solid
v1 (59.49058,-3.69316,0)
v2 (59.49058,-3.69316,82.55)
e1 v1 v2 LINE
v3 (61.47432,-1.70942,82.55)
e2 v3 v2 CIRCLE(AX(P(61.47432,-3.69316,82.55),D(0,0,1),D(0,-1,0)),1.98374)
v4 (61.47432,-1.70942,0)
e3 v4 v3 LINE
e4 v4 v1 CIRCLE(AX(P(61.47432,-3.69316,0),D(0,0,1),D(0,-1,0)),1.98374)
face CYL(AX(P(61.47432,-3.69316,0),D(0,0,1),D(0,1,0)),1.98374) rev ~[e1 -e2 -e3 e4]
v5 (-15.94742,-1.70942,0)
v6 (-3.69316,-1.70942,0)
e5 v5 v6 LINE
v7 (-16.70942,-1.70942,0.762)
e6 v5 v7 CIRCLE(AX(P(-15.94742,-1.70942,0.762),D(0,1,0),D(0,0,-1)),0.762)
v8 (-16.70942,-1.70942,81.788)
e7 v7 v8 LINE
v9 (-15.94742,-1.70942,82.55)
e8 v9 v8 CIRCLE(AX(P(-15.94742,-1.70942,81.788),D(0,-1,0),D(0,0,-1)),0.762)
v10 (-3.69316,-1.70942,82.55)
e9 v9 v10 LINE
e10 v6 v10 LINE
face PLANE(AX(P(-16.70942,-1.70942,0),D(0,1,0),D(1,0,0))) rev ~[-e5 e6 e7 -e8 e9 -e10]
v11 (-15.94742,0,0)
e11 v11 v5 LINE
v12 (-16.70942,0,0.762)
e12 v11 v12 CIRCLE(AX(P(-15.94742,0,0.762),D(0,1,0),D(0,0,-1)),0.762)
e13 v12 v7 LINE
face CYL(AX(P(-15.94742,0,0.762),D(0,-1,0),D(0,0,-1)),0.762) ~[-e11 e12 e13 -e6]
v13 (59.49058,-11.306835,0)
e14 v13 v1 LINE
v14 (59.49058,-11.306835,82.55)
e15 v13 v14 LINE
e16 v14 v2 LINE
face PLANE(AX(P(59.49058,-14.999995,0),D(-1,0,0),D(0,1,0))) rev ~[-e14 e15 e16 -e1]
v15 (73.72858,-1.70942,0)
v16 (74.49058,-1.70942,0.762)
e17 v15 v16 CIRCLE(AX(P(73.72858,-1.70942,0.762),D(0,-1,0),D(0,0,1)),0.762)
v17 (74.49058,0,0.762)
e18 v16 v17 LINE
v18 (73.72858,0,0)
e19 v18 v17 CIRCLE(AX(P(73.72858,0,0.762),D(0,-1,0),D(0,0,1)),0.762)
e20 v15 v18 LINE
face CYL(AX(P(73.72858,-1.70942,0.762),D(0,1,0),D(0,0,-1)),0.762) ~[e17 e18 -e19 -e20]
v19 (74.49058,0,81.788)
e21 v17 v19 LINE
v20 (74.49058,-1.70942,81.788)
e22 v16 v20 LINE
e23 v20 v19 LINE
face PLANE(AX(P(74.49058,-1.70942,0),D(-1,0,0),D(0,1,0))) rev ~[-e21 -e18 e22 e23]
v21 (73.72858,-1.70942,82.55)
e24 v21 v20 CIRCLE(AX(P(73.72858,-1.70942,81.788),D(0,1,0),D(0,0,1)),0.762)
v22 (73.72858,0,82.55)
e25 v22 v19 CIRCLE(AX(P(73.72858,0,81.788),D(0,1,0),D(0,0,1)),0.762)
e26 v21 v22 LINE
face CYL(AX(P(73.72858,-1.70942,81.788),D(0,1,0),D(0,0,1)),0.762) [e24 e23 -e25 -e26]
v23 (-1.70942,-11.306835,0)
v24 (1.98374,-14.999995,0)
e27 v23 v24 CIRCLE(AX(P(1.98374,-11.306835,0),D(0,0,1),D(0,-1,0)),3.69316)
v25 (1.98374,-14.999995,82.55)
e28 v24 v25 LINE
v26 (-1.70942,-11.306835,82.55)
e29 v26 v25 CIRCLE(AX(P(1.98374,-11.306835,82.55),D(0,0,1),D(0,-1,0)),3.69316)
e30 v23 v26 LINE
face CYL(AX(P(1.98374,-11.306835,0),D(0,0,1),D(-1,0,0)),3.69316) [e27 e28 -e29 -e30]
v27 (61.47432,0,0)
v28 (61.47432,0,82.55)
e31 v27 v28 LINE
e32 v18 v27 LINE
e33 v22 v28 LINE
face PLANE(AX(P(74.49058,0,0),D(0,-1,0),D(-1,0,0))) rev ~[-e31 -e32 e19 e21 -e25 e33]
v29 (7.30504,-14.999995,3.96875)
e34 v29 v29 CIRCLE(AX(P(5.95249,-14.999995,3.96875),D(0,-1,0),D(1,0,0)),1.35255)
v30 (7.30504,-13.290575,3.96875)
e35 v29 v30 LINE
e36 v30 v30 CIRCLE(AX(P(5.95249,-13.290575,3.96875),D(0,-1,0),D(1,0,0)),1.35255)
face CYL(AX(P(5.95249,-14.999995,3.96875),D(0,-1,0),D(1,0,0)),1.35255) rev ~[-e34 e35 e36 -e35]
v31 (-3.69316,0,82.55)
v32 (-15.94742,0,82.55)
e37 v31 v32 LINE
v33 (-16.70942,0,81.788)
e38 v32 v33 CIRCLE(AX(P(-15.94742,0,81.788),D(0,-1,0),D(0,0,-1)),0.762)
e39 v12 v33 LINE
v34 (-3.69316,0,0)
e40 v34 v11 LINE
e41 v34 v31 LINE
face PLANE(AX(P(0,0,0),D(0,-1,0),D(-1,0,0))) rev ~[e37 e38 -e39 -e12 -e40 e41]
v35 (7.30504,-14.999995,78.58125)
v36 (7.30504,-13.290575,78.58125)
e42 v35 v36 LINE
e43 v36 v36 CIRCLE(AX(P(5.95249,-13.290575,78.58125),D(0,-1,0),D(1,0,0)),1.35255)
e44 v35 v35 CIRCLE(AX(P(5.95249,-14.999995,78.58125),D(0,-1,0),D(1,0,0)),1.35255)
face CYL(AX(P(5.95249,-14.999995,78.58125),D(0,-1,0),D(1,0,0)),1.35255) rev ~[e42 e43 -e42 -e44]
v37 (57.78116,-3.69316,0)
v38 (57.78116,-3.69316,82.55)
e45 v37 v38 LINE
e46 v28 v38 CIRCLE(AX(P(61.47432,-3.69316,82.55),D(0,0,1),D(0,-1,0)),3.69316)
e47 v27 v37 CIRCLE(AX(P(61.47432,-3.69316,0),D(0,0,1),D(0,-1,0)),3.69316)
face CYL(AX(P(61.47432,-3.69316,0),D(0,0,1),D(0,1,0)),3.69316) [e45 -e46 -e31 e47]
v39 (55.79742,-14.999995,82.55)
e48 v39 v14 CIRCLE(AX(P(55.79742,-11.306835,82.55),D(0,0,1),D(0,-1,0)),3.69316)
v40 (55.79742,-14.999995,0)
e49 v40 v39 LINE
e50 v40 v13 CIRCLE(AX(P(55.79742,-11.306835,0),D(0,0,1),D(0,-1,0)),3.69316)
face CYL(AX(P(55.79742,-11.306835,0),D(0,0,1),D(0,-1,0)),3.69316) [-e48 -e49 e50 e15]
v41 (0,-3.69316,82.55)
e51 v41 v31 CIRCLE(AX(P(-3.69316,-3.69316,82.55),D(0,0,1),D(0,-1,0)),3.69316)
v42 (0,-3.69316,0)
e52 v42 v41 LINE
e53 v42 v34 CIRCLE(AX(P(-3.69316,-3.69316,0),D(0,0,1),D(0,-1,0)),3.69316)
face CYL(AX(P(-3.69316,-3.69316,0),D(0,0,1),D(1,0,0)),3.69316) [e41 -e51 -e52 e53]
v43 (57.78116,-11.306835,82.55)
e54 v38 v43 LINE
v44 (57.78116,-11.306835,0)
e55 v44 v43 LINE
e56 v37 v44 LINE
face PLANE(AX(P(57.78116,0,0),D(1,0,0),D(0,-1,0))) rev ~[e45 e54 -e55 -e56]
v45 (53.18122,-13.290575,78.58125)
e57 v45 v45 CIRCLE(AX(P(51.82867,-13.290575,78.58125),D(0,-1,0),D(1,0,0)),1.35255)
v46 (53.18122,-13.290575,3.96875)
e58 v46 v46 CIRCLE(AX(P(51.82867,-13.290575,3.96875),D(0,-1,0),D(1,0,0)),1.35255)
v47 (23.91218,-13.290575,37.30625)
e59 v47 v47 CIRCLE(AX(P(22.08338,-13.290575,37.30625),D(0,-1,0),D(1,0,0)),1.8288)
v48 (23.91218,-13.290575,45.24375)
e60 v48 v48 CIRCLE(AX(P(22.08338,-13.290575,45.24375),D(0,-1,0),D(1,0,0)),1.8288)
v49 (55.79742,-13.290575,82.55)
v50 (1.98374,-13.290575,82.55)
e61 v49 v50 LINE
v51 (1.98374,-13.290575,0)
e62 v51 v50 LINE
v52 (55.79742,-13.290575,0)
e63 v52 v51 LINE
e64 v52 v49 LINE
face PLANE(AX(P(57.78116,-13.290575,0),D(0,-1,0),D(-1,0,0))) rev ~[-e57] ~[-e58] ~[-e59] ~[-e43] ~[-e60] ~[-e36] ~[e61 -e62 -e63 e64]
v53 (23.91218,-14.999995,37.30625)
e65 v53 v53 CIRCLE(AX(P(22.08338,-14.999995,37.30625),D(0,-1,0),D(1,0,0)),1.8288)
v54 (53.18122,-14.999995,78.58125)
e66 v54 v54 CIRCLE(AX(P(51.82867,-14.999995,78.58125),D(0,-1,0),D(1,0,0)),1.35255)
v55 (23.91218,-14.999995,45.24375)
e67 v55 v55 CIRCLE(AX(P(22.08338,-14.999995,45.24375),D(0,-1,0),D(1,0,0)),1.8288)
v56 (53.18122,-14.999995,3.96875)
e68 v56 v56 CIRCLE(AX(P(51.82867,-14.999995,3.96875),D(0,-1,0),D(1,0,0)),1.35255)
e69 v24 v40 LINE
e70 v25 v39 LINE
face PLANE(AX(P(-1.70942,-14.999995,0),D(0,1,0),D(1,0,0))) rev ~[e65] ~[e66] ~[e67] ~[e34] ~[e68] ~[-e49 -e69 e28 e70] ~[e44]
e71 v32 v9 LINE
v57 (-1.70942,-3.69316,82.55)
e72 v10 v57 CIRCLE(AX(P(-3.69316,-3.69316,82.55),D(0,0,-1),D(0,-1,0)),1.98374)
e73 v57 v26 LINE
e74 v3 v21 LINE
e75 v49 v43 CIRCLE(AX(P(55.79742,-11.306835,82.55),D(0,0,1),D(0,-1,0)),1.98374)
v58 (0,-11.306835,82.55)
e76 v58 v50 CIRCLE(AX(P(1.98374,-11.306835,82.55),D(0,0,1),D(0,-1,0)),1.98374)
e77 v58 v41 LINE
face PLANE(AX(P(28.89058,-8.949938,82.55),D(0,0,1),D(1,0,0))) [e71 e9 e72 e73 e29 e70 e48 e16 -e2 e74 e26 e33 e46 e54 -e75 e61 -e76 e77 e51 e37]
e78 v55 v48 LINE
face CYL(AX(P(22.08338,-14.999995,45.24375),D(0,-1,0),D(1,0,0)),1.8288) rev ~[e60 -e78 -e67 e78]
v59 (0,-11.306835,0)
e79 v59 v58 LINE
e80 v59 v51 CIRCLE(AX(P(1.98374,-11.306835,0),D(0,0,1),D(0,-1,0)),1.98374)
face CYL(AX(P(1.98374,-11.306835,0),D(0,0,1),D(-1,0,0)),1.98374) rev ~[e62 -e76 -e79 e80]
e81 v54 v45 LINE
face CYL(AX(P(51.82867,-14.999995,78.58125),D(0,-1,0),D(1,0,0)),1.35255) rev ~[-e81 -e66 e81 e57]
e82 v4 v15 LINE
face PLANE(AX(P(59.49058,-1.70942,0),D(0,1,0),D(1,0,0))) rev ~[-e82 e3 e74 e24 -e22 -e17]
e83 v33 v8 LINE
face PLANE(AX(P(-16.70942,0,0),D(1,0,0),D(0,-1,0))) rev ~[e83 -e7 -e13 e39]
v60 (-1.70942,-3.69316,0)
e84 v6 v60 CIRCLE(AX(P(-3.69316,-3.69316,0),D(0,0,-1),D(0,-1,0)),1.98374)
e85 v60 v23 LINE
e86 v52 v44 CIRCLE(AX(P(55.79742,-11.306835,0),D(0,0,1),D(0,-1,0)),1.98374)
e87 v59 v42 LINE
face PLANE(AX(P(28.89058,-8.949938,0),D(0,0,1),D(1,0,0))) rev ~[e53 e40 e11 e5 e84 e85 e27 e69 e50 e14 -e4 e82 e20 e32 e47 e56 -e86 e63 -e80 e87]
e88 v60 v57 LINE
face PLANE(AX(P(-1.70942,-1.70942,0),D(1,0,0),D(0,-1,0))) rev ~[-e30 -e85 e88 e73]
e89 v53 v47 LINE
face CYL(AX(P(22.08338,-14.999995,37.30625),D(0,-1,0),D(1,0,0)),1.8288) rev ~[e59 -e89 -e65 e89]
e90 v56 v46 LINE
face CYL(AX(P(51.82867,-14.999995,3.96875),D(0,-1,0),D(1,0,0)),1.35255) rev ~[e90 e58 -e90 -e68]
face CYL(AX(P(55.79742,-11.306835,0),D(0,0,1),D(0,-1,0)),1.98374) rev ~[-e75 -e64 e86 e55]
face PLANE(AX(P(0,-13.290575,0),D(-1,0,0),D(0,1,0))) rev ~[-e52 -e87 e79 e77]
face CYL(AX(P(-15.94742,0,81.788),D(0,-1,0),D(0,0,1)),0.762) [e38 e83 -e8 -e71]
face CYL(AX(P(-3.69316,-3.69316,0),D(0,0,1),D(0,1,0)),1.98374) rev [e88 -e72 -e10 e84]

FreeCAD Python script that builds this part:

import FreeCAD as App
import Part
import Sketcher

V = App.Vector
Q = App.Units.Quantity


def edges_at(feature, points):
    """Names of the edges that pass closest to the given points."""
    edges = feature.Shape.Edges
    near = lambda p: min(range(len(edges)), key=lambda i: edges[i].distToShape(Part.Vertex(*p))[0])
    return sorted({f"Edge{near(p) + 1}" for p in points})


def add_polygon(sketch, points):
    """Adds a closed chain of lines whose ends are joined by coincident constraints."""
    first, n = sketch.GeometryCount, len(points)
    for a, b in zip(points, points[1:] + points[:1]):
        sketch.addGeometry(Part.LineSegment(App.Vector(*a, 0), App.Vector(*b, 0)), False)
    for i in range(n):
        sketch.addConstraint(Sketcher.Constraint("Coincident", first + i, 2, first + (i + 1) % n, 1))

doc = App.newDocument("Part")
body = doc.addObject("PartDesign::Body", "Body")

sketch1 = body.newObject("Sketcher::SketchObject", "Sketch")
sketch1.AttachmentSupport = (doc.getObject("XY_Plane"), [""])
sketch1.MapMode = "FlatFace"
add_polygon(sketch1, [(0, -13.3), (0, 0), (-16.7, 0), (-16.7, -1.7), (-1.7, -1.7), (-1.7, -15), (59.5, -15), (59.5, -1.7), (74.5, -1.7), (74.5, 0), (57.8, 0), (57.8, -13.3)])
sketch1.addConstraint(Sketcher.Constraint("Vertical", 0))
sketch1.addConstraint(Sketcher.Constraint("Horizontal", 1))
sketch1.addConstraint(Sketcher.Constraint("Vertical", 2))
sketch1.addConstraint(Sketcher.Constraint("Horizontal", 3))
sketch1.addConstraint(Sketcher.Constraint("Vertical", 4))
sketch1.addConstraint(Sketcher.Constraint("Horizontal", 5))
sketch1.addConstraint(Sketcher.Constraint("Vertical", 6))
sketch1.addConstraint(Sketcher.Constraint("Horizontal", 7))
sketch1.addConstraint(Sketcher.Constraint("Vertical", 8))
sketch1.addConstraint(Sketcher.Constraint("Horizontal", 9))
sketch1.addConstraint(Sketcher.Constraint("Vertical", 10))
sketch1.addConstraint(Sketcher.Constraint("Horizontal", 11))
sketch1.addConstraint(Sketcher.Constraint("Coincident", 0, 2, -1, 1))
sketch1.addConstraint(Sketcher.Constraint("PointOnObject", 8, 2, -1))
sketch1.addConstraint(Sketcher.Constraint("Horizontal", 3, 2, 6, 2))
sketch1.addConstraint(Sketcher.Constraint("Equal", 3, 7))
sketch1.addConstraint(Sketcher.Constraint("Equal", 1, 9))
sketch1.addConstraint(Sketcher.Constraint("Equal", 0, 4))
sketch1.addConstraint(Sketcher.Constraint("DistanceX", 2, 2, 5, 2, Q("3 in")))
sketch1.addConstraint(Sketcher.Constraint("DistanceY", 2, 2, 2, 1, Q("0.0673 in")))
sketch1.addConstraint(Sketcher.Constraint("DistanceX", 3, 1, 3, 2, Q("15 mm")))
sketch1.addConstraint(Sketcher.Constraint("DistanceX", 3, 2, -1, 1, Q("0.0673 in")))
sketch1.addConstraint(Sketcher.Constraint("DistanceY", 0, 1, 0, 2, Q("13.290575 mm")))
pad1 = body.newObject("PartDesign::Pad", "Pad")
pad1.Profile = sketch1
pad1.Length = Q("3.25 in")
doc.recompute()

fillet = body.newObject("PartDesign::Fillet", "Fillet")
fillet.Base = (pad1, edges_at(pad1, [
    (59.491, -15, 41.275),
    (-1.709, -15, 41.275),
    (0, 0, 41.275),
    (57.781, 0, 41.275),
]))
fillet.Radius = Q("0.1454 in")
doc.recompute()

fillet2 = body.newObject("PartDesign::Fillet", "Fillet001")
fillet2.Base = (fillet, edges_at(fillet, [
    (0, -13.291, 41.275),
    (57.781, -13.291, 41.275),
    (59.491, -1.709, 41.275),
    (-1.709, -1.709, 41.275),
]))
fillet2.Radius = Q("0.0781 in")

sketch2 = body.newObject("Sketcher::SketchObject", "Sketch001")
sketch2.AttachmentSupport = (doc.getObject("XZ_Plane"), [""])
sketch2.MapMode = "FlatFace"
sketch2.AttachmentOffset = App.Placement(V(0, 0, 14.999995), App.Rotation())
sketch2.addGeometry(Part.Circle(V(51.8, 78.6, 0), V(0, 0, 1), 1.4), False)
sketch2.addGeometry(Part.Circle(V(6, 78.6, 0), V(0, 0, 1), 1.4), False)
sketch2.addGeometry(Part.Circle(V(6, 4, 0), V(0, 0, 1), 1.4), False)
sketch2.addGeometry(Part.Circle(V(51.8, 4, 0), V(0, 0, 1), 1.4), False)
sketch2.addGeometry(Part.Circle(V(22.1, 37.3, 0), V(0, 0, 1), 1.8), False)
sketch2.addGeometry(Part.Circle(V(22.1, 45.2, 0), V(0, 0, 1), 1.8), False)
sketch2.addConstraint(Sketcher.Constraint("Equal", 0, 1))
sketch2.addConstraint(Sketcher.Constraint("Equal", 1, 2))
sketch2.addConstraint(Sketcher.Constraint("Equal", 2, 3))
sketch2.addConstraint(Sketcher.Constraint("Equal", 4, 5))
sketch2.addConstraint(Sketcher.Constraint("Horizontal", 0, 3, 1, 3))
sketch2.addConstraint(Sketcher.Constraint("Horizontal", 2, 3, 3, 3))
sketch2.addConstraint(Sketcher.Constraint("Vertical", 1, 3, 2, 3))
sketch2.addConstraint(Sketcher.Constraint("Vertical", 0, 3, 3, 3))
sketch2.addConstraint(Sketcher.Constraint("Vertical", 4, 3, 5, 3))
sketch2.addConstraint(Sketcher.Constraint("Diameter", 4, Q("0.144 in")))
sketch2.addConstraint(Sketcher.Constraint("Diameter", 0, Q("0.1065 in")))
sketch2.addConstraint(Sketcher.Constraint("DistanceY", -1, 1, 0, 3, Q("3.09375 in")))
sketch2.addConstraint(Sketcher.Constraint("DistanceY", -1, 1, 2, 3, Q("0.15625 in")))
sketch2.addConstraint(Sketcher.Constraint("DistanceY", -1, 1, 4, 3, Q("1.46875 in")))
sketch2.addConstraint(Sketcher.Constraint("DistanceY", -1, 1, 5, 3, Q("1.78125 in")))
sketch2.addConstraint(Sketcher.Constraint("DistanceX", -1, 1, 0, 3, Q("51.82867 mm")))
sketch2.addConstraint(Sketcher.Constraint("DistanceX", -1, 1, 1, 3, Q("5.95249 mm")))
sketch2.addConstraint(Sketcher.Constraint("DistanceX", -1, 1, 4, 3, Q("22.08338 mm")))
pocket1 = body.newObject("PartDesign::Pocket", "Pocket")
pocket1.Profile = sketch2
pocket1.Type = "ThroughAll"
doc.recompute()

fillet3 = body.newObject("PartDesign::Fillet", "Fillet002")
fillet3.Base = (pocket1, edges_at(pocket1, [
    (-16.709, -0.855, 82.55),
    (-16.709, -0.855, 0),
    (74.491, -0.855, 0),
    (74.491, -0.855, 82.55),
]))
fillet3.Radius = Q("0.03 in")

doc.recompute()
